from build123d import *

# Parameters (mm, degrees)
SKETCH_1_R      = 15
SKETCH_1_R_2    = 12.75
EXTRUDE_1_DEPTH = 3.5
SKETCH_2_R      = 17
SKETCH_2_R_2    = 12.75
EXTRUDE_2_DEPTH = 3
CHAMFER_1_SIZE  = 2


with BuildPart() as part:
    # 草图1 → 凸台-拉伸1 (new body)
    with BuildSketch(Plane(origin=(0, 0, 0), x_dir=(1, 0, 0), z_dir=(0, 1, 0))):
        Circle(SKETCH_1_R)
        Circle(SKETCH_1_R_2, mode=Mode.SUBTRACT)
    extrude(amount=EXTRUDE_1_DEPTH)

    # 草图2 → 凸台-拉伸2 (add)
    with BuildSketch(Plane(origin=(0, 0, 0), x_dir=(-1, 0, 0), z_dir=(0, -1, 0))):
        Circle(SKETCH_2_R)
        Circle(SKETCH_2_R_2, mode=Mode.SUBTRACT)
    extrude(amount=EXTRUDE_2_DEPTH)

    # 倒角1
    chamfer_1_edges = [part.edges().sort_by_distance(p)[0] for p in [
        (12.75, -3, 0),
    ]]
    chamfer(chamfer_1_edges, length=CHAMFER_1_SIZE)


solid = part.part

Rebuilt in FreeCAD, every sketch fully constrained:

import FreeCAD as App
import Part
import Sketcher
from FreeCAD import Vector
Q = App.Units.Quantity


def edges_at(feature, points):
    """Names of the edges that pass closest to the given points."""
    edges = feature.Shape.Edges
    near = lambda p: min(range(len(edges)), key=lambda i: edges[i].distToShape(Part.Vertex(*p))[0])
    return sorted({f"Edge{near(p) + 1}" for p in points})

doc = App.newDocument("Part")
params = doc.addObject("Spreadsheet::Sheet", "Params")
for row, (alias, value) in enumerate([
    ("sketch1_diameter", "30 mm"),
    ("sketch1_diameter2", "25.5 mm"),
    ("pad1_length", "3.5 mm"),
    ("sketch2_diameter", "34 mm"),
    ("sketch2_diameter2", "25.5 mm"),
    ("pad2_length", "3 mm"),
    ("chamfer_size", "2 mm"),
], start=1):
    params.set(f"A{row}", alias)
    params.set(f"B{row}", "=" + value)
    params.setAlias(f"B{row}", alias)

body = doc.addObject("PartDesign::Body", "Body")

sketch1 = doc.addObject("Sketcher::SketchObject", "Sketch")
body.addObject(sketch1)
sketch1.AttachmentSupport = (doc.XZ_Plane, [""])
sketch1.MapMode = "FlatFace"
sketch1.addGeometry([
    Part.Circle(Vector(0, 0, 0), Vector(0, 0, 1), 15),
    Part.Circle(Vector(0, 0, 0), Vector(0, 0, 1), 12.75),
], False)
sketch1.addConstraint([
    Sketcher.Constraint("Coincident", 0, 3, -1, 1),
    Sketcher.Constraint("Coincident", 1, 3, -1, 1),
    Sketcher.Constraint("Diameter", 0, Q("30 mm")),
    Sketcher.Constraint("Diameter", 1, Q("25.5 mm")),
])
sketch1.setExpression("Constraints[2]", "Params.sketch1_diameter")
sketch1.setExpression("Constraints[3]", "Params.sketch1_diameter2")
pad1 = doc.addObject("PartDesign::Pad", "Pad")
body.addObject(pad1)
pad1.Profile = sketch1
pad1.setExpression("Length", "Params.pad1_length")
pad1.Reversed = True

sketch2 = doc.addObject("Sketcher::SketchObject", "Sketch001")
body.addObject(sketch2)
sketch2.AttachmentSupport = (doc.XZ_Plane, [""])
sketch2.MapMode = "FlatFace"
sketch2.addGeometry([
    Part.Circle(Vector(0, 0, 0), Vector(0, 0, 1), 17),
    Part.Circle(Vector(0, 0, 0), Vector(0, 0, 1), 12.75),
], False)
sketch2.addConstraint([
    Sketcher.Constraint("Coincident", 0, 3, -1, 1),
    Sketcher.Constraint("Coincident", 1, 3, -1, 1),
    Sketcher.Constraint("Diameter", 0, Q("34 mm")),
    Sketcher.Constraint("Diameter", 1, Q("25.5 mm")),
])
sketch2.setExpression("Constraints[2]", "Params.sketch2_diameter")
sketch2.setExpression("Constraints[3]", "Params.sketch2_diameter2")
pad2 = doc.addObject("PartDesign::Pad", "Pad001")
body.addObject(pad2)
pad2.Profile = sketch2
pad2.setExpression("Length", "Params.pad2_length")
doc.recompute()

chamfer = doc.addObject("PartDesign::Chamfer", "Chamfer")
body.addObject(chamfer)
chamfer.Base = (pad2, edges_at(pad2, [(12.75, -3, 0)]))
chamfer.setExpression("Size", "Params.chamfer_size")

doc.recompute()
